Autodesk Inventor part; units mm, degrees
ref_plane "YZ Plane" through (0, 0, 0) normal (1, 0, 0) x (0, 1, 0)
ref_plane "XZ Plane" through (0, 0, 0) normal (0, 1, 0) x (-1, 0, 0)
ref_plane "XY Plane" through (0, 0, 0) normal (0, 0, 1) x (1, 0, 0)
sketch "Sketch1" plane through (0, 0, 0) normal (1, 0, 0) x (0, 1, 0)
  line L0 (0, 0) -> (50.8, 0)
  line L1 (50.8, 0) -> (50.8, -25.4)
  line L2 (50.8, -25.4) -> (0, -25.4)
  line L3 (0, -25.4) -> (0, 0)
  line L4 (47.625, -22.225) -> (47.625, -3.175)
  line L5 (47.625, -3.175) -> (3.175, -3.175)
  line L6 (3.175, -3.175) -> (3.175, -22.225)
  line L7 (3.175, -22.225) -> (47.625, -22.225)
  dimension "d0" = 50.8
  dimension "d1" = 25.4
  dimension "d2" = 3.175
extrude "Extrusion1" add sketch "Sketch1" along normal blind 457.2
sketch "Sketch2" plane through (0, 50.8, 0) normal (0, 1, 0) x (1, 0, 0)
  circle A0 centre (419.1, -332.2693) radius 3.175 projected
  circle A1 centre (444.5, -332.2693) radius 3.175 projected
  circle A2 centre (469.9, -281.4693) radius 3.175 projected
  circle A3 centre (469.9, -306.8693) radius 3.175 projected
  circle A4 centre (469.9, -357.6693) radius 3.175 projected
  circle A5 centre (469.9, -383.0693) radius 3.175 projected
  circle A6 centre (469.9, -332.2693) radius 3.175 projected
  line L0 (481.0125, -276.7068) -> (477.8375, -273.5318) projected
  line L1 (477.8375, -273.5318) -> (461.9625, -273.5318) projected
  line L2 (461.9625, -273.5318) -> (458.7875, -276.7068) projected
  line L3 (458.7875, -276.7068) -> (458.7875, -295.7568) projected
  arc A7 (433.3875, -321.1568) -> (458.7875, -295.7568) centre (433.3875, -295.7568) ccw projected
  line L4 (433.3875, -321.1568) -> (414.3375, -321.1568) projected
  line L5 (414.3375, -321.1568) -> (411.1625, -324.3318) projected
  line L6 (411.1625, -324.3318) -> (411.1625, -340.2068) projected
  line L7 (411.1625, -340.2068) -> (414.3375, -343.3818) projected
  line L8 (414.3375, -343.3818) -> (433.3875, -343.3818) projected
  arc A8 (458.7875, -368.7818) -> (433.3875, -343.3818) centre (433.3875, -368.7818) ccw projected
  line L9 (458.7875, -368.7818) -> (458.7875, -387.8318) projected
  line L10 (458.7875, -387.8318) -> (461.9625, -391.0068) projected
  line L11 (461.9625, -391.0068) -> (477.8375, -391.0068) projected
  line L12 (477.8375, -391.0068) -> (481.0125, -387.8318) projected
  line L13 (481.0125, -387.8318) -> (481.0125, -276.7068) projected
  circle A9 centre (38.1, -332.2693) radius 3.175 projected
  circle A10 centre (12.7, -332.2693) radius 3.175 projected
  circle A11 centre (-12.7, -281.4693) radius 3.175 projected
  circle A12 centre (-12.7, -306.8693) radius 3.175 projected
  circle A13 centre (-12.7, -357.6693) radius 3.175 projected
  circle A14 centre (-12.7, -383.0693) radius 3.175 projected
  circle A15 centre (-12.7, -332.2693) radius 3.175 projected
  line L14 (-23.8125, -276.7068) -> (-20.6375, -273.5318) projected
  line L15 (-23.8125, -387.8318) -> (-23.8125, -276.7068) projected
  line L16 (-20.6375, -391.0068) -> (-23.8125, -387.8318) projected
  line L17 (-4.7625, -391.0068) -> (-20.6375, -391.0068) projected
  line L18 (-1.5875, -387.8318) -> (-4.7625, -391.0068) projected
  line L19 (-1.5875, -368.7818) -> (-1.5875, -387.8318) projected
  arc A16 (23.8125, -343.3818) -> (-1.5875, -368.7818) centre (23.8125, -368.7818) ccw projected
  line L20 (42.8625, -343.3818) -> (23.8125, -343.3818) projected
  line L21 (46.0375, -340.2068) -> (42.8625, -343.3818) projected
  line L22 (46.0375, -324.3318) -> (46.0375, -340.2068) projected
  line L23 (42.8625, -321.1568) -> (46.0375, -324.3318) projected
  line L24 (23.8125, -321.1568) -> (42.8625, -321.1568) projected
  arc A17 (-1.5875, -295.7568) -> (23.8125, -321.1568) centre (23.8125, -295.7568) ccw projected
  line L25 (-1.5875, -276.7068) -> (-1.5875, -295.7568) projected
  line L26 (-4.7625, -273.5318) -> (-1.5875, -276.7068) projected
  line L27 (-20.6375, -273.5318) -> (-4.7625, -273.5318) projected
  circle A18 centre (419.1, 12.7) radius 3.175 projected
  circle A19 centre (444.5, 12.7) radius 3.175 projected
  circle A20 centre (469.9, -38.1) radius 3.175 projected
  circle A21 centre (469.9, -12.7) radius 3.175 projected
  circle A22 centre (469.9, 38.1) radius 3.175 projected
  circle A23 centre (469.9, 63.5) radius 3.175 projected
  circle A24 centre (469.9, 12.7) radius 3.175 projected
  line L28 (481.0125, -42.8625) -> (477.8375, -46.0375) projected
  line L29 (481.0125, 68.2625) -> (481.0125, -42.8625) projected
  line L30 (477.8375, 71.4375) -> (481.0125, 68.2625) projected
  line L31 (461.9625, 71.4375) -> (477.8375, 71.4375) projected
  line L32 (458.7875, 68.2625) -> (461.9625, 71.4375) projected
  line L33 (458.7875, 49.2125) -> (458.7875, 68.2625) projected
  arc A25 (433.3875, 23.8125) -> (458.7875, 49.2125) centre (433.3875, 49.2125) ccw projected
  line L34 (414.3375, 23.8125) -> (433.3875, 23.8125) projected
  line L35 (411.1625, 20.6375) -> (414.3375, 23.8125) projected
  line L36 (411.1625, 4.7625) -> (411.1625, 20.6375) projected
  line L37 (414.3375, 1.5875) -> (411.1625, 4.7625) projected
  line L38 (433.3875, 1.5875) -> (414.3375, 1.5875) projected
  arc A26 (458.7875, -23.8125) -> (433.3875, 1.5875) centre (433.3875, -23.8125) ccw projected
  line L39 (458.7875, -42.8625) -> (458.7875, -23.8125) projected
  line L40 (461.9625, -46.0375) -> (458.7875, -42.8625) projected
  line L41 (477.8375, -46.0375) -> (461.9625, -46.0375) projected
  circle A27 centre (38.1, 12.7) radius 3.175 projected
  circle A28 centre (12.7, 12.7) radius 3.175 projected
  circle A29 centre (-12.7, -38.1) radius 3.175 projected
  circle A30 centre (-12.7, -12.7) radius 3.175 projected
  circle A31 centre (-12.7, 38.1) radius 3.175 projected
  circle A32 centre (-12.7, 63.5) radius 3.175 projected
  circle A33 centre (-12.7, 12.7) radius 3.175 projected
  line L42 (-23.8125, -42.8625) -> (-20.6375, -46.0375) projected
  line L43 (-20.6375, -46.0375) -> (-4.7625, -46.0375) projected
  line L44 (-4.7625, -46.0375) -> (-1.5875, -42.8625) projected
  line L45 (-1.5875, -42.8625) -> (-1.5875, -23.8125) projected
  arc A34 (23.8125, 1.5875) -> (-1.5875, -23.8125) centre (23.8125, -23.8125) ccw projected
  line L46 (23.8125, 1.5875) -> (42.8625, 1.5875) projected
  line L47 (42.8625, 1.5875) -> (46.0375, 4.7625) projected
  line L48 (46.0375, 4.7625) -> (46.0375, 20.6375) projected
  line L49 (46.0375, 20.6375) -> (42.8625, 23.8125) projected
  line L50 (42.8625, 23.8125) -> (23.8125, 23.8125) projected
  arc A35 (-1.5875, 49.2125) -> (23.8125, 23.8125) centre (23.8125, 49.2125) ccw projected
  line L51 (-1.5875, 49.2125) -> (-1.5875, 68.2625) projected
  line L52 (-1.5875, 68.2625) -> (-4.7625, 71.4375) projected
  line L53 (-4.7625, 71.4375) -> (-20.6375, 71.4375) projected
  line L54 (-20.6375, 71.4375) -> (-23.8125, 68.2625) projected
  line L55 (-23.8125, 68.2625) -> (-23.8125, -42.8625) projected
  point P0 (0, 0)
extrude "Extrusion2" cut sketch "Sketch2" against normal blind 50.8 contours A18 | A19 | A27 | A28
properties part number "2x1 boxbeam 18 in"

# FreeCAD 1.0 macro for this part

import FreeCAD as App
import Part
import Sketcher

V = App.Vector
Q = App.Units.Quantity


def add_polygon(sketch, points):
    """Adds a closed chain of lines whose ends are joined by coincident constraints."""
    first, n = sketch.GeometryCount, len(points)
    for a, b in zip(points, points[1:] + points[:1]):
        sketch.addGeometry(Part.LineSegment(App.Vector(*a, 0), App.Vector(*b, 0)), False)
    for i in range(n):
        sketch.addConstraint(Sketcher.Constraint("Coincident", first + i, 2, first + (i + 1) % n, 1))

doc = App.newDocument("Part")
body = doc.addObject("PartDesign::Body", "Body")

sketch1 = doc.addObject("Sketcher::SketchObject", "Sketch")
body.addObject(sketch1)
sketch1.AttachmentSupport = (doc.YZ_Plane, [""])
sketch1.MapMode = "FlatFace"
add_polygon(sketch1, [(51, 0), (0, 0), (0, -25), (51, -25)])
add_polygon(sketch1, [(48, -3), (48, -22), (3, -22), (3, -3)])
sketch1.addConstraint([
    Sketcher.Constraint("Horizontal", 0),
    Sketcher.Constraint("Vertical", 1),
    Sketcher.Constraint("Horizontal", 2),
    Sketcher.Constraint("Vertical", 3),
    Sketcher.Constraint("Vertical", 4),
    Sketcher.Constraint("Horizontal", 5),
    Sketcher.Constraint("Vertical", 6),
    Sketcher.Constraint("Horizontal", 7),
    Sketcher.Constraint("Coincident", 0, 2, -1, 1),
    Sketcher.Constraint("DistanceX", 0, 2, 0, 1, Q("2 in")),
    Sketcher.Constraint("DistanceY", 1, 2, 1, 1, Q("1 in")),
    Sketcher.Constraint("DistanceX", -1, 1, 5, 2, Q("0.125 in")),
    Sketcher.Constraint("DistanceY", 6, 2, -1, 1, Q("0.125 in")),
    Sketcher.Constraint("DistanceX", 4, 2, 2, 2, Q("0.125 in")),
    Sketcher.Constraint("DistanceY", 2, 2, 4, 2, Q("0.125 in")),
])
pad1 = doc.addObject("PartDesign::Pad", "Pad")
body.addObject(pad1)
pad1.Profile = sketch1
pad1.Length = Q("18 in")

sketch2 = doc.addObject("Sketcher::SketchObject", "Sketch001")
body.addObject(sketch2)
sketch2.AttachmentSupport = (doc.XZ_Plane, [""])
sketch2.MapMode = "FlatFace"
sketch2.AttachmentOffset = App.Placement(V(0, 0, -2 * 25.4), App.Rotation())
sketch2.addGeometry([
    Part.Circle(V(419.1, -12.7, 0), V(0, 0, 1), 3.2),
    Part.Circle(V(444.5, -12.7, 0), V(0, 0, 1), 3.2),
    Part.Circle(V(38.1, -12.7, 0), V(0, 0, 1), 3.2),
    Part.Circle(V(12.7, -12.7, 0), V(0, 0, 1), 3.2),
], False)
sketch2.addConstraint([
    Sketcher.Constraint("Equal", 0, 1),
    Sketcher.Constraint("Equal", 1, 2),
    Sketcher.Constraint("Equal", 2, 3),
    Sketcher.Constraint("Horizontal", 0, 3, 1, 3),
    Sketcher.Constraint("Horizontal", 1, 3, 2, 3),
    Sketcher.Constraint("Horizontal", 2, 3, 3, 3),
    Sketcher.Constraint("Diameter", 0, Q("0.25 in")),
    Sketcher.Constraint("DistanceX", 0, 3, 1, 3, Q("1 in")),
    Sketcher.Constraint("DistanceX", 2, 3, 0, 3, Q("15 in")),
    Sketcher.Constraint("DistanceX", 3, 3, 2, 3, Q("1 in")),
    Sketcher.Constraint("DistanceX", -1, 1, 0, 3, Q("16.5 in")),
    Sketcher.Constraint("DistanceY", 0, 3, -1, 1, Q("0.5 in")),
])
pocket1 = doc.addObject("PartDesign::Pocket", "Pocket")
body.addObject(pocket1)
pocket1.Profile = sketch2
pocket1.Length = Q("2 in")
pocket1.Reversed = True

doc.recompute()
